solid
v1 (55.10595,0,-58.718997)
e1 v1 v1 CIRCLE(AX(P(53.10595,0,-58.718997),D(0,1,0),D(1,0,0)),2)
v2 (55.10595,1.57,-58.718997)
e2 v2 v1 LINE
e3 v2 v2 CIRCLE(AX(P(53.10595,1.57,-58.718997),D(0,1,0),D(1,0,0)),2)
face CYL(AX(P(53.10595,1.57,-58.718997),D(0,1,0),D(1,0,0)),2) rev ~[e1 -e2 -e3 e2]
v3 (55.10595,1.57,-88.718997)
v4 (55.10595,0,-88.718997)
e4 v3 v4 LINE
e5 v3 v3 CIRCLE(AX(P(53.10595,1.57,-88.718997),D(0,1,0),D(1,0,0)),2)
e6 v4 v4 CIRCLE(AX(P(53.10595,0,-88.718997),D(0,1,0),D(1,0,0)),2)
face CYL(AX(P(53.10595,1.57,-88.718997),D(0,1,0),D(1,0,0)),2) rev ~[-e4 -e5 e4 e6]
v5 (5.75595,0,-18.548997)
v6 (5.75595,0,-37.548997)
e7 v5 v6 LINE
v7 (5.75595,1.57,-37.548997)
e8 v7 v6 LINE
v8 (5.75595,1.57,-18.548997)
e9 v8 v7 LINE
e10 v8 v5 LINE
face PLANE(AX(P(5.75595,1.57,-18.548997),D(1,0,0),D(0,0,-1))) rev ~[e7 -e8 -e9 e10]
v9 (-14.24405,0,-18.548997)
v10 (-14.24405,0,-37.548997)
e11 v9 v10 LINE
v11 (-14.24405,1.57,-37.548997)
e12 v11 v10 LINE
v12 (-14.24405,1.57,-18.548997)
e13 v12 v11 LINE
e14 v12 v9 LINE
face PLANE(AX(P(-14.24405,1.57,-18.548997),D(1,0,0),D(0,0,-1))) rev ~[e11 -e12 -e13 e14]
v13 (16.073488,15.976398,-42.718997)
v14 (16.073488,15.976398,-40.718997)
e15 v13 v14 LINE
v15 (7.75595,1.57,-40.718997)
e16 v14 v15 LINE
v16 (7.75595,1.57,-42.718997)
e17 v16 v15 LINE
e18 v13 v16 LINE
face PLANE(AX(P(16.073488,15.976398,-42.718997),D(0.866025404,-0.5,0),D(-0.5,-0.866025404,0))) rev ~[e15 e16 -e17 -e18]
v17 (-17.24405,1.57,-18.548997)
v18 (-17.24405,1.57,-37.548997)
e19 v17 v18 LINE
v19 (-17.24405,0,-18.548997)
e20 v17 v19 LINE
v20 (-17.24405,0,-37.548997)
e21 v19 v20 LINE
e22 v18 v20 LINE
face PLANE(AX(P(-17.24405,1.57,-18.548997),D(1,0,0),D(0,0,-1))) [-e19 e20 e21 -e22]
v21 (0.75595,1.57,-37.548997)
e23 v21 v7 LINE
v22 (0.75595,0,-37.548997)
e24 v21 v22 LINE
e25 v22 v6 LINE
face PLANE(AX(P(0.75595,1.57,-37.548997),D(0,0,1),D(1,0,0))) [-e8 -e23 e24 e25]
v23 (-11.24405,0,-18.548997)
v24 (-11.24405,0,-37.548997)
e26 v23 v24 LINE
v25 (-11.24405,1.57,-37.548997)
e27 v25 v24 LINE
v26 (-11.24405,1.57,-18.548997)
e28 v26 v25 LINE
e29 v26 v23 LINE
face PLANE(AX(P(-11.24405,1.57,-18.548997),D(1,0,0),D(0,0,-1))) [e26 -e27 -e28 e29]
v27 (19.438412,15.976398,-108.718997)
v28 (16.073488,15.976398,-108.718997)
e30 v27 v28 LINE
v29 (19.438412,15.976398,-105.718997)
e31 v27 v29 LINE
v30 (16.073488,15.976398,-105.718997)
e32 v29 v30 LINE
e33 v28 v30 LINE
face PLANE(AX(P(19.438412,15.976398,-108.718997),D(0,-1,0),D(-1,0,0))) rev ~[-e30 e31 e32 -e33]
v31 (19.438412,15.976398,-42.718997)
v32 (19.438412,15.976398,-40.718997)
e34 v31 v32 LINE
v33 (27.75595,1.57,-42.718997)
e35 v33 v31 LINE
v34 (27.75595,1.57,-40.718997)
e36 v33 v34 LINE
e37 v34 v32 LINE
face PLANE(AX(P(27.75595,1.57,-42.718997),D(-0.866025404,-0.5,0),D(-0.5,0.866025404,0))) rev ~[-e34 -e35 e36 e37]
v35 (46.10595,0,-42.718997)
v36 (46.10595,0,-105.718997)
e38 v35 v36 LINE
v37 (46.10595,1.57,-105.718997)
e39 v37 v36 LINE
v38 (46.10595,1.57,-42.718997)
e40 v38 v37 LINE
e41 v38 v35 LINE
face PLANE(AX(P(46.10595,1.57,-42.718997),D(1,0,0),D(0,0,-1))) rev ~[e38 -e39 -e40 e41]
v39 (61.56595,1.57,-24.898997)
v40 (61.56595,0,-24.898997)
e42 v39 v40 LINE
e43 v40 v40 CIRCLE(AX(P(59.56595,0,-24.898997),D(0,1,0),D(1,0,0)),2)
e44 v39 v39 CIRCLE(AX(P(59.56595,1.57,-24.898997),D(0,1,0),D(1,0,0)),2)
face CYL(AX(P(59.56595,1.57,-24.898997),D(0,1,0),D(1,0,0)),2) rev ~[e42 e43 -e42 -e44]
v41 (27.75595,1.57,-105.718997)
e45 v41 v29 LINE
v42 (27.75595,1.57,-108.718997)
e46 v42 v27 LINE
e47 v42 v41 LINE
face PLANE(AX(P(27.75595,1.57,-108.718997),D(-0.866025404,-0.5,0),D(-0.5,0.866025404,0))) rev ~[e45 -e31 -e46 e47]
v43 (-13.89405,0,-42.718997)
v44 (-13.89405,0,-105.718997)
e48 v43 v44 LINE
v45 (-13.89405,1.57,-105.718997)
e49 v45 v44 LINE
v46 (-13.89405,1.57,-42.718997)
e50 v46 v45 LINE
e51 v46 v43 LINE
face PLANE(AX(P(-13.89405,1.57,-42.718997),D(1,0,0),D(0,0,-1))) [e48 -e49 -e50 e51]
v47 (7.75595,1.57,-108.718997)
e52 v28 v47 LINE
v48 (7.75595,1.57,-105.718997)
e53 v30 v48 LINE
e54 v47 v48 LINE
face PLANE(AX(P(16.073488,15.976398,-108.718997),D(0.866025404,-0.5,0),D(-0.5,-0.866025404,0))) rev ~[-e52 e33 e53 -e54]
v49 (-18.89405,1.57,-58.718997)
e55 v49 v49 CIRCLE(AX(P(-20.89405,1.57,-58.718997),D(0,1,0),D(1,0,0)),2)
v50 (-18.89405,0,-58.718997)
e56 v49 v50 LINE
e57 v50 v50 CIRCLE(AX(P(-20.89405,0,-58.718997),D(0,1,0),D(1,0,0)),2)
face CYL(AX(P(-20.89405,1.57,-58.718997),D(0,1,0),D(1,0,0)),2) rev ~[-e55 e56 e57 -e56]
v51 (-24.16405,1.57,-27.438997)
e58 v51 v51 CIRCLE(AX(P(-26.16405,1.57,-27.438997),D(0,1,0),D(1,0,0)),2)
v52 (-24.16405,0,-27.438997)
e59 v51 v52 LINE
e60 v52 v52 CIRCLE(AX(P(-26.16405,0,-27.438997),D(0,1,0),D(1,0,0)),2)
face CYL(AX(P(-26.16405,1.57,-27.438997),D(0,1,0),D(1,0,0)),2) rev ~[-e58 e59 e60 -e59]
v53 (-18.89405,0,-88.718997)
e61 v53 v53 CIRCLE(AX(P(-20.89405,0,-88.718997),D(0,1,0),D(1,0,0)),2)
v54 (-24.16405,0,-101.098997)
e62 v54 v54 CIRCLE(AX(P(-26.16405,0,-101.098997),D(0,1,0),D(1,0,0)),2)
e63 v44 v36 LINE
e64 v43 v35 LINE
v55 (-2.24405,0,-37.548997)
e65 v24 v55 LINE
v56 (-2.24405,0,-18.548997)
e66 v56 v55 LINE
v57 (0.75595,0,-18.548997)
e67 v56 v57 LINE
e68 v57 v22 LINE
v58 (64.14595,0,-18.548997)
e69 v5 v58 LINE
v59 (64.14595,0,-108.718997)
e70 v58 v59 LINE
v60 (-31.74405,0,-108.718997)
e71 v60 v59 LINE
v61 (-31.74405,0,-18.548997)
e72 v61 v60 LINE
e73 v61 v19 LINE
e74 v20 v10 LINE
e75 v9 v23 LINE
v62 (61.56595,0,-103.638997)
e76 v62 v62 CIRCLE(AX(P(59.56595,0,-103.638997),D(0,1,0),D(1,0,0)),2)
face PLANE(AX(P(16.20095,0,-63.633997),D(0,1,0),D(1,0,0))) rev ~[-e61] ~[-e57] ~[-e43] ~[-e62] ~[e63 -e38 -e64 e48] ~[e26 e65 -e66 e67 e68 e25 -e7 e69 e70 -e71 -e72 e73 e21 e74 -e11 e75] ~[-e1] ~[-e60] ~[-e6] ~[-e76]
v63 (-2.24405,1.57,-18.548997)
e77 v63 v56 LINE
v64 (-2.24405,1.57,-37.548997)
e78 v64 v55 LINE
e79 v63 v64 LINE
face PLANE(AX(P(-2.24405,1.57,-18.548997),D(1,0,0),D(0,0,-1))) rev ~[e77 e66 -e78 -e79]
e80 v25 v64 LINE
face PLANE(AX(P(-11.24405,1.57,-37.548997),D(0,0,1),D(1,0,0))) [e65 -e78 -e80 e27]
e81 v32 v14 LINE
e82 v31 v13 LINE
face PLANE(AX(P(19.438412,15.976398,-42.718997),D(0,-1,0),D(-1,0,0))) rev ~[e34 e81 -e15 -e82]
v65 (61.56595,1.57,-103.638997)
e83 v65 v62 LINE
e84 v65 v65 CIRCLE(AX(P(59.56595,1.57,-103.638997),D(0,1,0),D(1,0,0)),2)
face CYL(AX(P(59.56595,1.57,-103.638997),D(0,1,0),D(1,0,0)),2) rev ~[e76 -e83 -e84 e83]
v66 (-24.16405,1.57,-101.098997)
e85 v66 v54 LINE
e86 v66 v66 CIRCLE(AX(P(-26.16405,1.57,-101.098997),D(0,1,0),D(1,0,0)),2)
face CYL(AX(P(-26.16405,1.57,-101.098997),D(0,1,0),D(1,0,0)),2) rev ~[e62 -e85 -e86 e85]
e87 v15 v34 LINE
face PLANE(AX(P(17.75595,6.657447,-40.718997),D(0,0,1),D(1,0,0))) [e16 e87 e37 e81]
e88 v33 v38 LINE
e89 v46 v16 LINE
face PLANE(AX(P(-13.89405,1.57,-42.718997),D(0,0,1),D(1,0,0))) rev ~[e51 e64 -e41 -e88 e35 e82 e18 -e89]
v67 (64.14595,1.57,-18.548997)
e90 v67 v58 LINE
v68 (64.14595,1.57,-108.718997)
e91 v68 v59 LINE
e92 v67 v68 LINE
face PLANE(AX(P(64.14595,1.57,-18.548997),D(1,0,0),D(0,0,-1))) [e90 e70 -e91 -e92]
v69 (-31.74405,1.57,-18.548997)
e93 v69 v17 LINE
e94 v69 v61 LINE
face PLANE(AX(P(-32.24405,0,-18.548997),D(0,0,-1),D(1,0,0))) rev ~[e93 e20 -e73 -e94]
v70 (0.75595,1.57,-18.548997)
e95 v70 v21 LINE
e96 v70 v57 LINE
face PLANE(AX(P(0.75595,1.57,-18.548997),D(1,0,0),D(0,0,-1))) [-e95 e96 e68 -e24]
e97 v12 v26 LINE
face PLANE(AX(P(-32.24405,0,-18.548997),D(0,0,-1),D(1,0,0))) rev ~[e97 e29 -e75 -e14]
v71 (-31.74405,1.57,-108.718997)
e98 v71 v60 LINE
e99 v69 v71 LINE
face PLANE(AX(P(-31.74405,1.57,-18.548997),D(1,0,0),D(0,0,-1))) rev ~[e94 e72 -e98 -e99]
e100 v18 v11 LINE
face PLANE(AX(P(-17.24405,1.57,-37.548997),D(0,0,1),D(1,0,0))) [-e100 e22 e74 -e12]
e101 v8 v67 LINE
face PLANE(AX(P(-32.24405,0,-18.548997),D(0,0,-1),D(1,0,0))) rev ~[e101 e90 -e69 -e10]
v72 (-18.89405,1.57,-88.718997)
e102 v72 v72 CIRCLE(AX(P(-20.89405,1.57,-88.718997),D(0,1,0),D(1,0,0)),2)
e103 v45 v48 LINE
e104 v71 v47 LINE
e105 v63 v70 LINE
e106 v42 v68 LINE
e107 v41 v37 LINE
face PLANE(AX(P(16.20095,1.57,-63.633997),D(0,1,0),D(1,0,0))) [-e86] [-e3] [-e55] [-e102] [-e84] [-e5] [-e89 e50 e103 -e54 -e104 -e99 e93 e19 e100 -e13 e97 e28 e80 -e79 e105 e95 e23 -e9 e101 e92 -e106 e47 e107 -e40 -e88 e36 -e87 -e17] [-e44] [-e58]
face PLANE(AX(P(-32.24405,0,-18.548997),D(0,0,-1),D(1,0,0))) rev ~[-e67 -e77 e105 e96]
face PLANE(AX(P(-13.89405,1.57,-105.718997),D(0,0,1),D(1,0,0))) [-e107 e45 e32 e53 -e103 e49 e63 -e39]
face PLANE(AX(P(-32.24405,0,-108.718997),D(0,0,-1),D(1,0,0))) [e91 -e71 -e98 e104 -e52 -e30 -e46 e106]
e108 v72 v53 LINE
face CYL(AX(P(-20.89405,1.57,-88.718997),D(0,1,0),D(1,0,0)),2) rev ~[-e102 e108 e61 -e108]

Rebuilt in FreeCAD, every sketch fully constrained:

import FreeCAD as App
import Part
import Sketcher
from FreeCAD import Vector
Q = App.Units.Quantity


def add_polygon(sketch, points):
    """Adds a closed chain of lines whose ends are joined by coincident constraints."""
    first, n = sketch.GeometryCount, len(points)
    for a, b in zip(points, points[1:] + points[:1]):
        sketch.addGeometry(Part.LineSegment(App.Vector(*a, 0), App.Vector(*b, 0)), False)
    for i in range(n):
        sketch.addConstraint(Sketcher.Constraint("Coincident", first + i, 2, first + (i + 1) % n, 1))

doc = App.newDocument("Part")
body = doc.addObject("PartDesign::Body", "Body")

sketch1 = body.newObject("Sketcher::SketchObject", "Sketch")
sketch1.AttachmentSupport = (doc.getObject("XZ_Plane"), [""])
sketch1.MapMode = "FlatFace"
add_polygon(sketch1, [(-32, -109), (-32, -19), (65, -19), (65, -109)])
sketch1.addConstraint(Sketcher.Constraint("Vertical", 0))
sketch1.addConstraint(Sketcher.Constraint("Horizontal", 1))
sketch1.addConstraint(Sketcher.Constraint("Vertical", 2))
sketch1.addConstraint(Sketcher.Constraint("Horizontal", 3))
sketch1.addConstraint(Sketcher.Constraint("DistanceX", 1, 1, 1, 2, Q("96.89 mm")))
sketch1.addConstraint(Sketcher.Constraint("DistanceY", 0, 1, 0, 2, Q("90.17 mm")))
sketch1.addConstraint(Sketcher.Constraint("DistanceX", 0, 2, -1, 1, Q("32.24405 mm")))
sketch1.addConstraint(Sketcher.Constraint("DistanceY", 0, 2, -1, 1, Q("18.548997 mm")))
pad1 = body.newObject("PartDesign::Pad", "Pad")
pad1.Profile = sketch1
pad1.Length = 1.57
pad1.Reversed = True

sketch2 = body.newObject("Sketcher::SketchObject", "Sketch001")
sketch2.AttachmentSupport = (doc.getObject("XZ_Plane"), [""])
sketch2.MapMode = "FlatFace"
sketch2.AttachmentOffset = App.Placement(Vector(0, 0, -1.57), App.Rotation())
sketch2.addGeometry(Part.Circle(Vector(59.6, -24.9, 0), Vector(0, 0, 1), 2), False)
sketch2.addGeometry(Part.Circle(Vector(-26.2, -27.4, 0), Vector(0, 0, 1), 2), False)
sketch2.addGeometry(Part.Circle(Vector(-26.2, -101.1, 0), Vector(0, 0, 1), 2), False)
sketch2.addGeometry(Part.Circle(Vector(59.6, -103.6, 0), Vector(0, 0, 1), 2), False)
sketch2.addConstraint(Sketcher.Constraint("Equal", 0, 1))
sketch2.addConstraint(Sketcher.Constraint("Equal", 1, 2))
sketch2.addConstraint(Sketcher.Constraint("Equal", 2, 3))
sketch2.addConstraint(Sketcher.Constraint("Vertical", 1, 3, 2, 3))
sketch2.addConstraint(Sketcher.Constraint("Vertical", 0, 3, 3, 3))
sketch2.addConstraint(Sketcher.Constraint("Diameter", 0, Q("4 mm")))
sketch2.addConstraint(Sketcher.Constraint("DistanceY", 2, 3, 0, 3, Q("76.2 mm")))
sketch2.addConstraint(Sketcher.Constraint("DistanceY", 3, 3, 1, 3, Q("76.2 mm")))
sketch2.addConstraint(Sketcher.Constraint("DistanceX", 1, 3, 0, 3, Q("85.73 mm")))
sketch2.addConstraint(Sketcher.Constraint("DistanceY", 1, 3, 0, 3, Q("2.54 mm")))
sketch2.addConstraint(Sketcher.Constraint("DistanceX", -1, 1, 0, 3, Q("59.56595 mm")))
sketch2.addConstraint(Sketcher.Constraint("DistanceY", 0, 3, -1, 1, Q("24.898997 mm")))
pocket1 = body.newObject("PartDesign::Pocket", "Pocket")
pocket1.Profile = sketch2
pocket1.Length = 1.57
pocket1.Reversed = True

sketch3 = body.newObject("Sketcher::SketchObject", "Sketch002")
sketch3.AttachmentSupport = (doc.getObject("XZ_Plane"), [""])
sketch3.MapMode = "FlatFace"
sketch3.AttachmentOffset = App.Placement(Vector(0, 0, -1.57), App.Rotation())
sketch3.addGeometry(Part.Circle(Vector(-20.9, -88.7, 0), Vector(0, 0, 1), 2), False)
sketch3.addGeometry(Part.Circle(Vector(53.1, -88.7, 0), Vector(0, 0, 1), 2), False)
sketch3.addGeometry(Part.Circle(Vector(-20.9, -58.7, 0), Vector(0, 0, 1), 2), False)
sketch3.addGeometry(Part.Circle(Vector(53.1, -58.7, 0), Vector(0, 0, 1), 2), False)
sketch3.addConstraint(Sketcher.Constraint("Equal", 0, 1))
sketch3.addConstraint(Sketcher.Constraint("Equal", 1, 2))
sketch3.addConstraint(Sketcher.Constraint("Equal", 2, 3))
sketch3.addConstraint(Sketcher.Constraint("Horizontal", 0, 3, 1, 3))
sketch3.addConstraint(Sketcher.Constraint("Horizontal", 2, 3, 3, 3))
sketch3.addConstraint(Sketcher.Constraint("Vertical", 0, 3, 2, 3))
sketch3.addConstraint(Sketcher.Constraint("Vertical", 1, 3, 3, 3))
sketch3.addConstraint(Sketcher.Constraint("Diameter", 0, Q("4 mm")))
sketch3.addConstraint(Sketcher.Constraint("DistanceX", 0, 3, 1, 3, Q("74 mm")))
sketch3.addConstraint(Sketcher.Constraint("DistanceY", 0, 3, 2, 3, Q("30 mm")))
sketch3.addConstraint(Sketcher.Constraint("DistanceX", 0, 3, -1, 1, Q("20.89405 mm")))
sketch3.addConstraint(Sketcher.Constraint("DistanceY", 0, 3, -1, 1, Q("88.718997 mm")))
pocket2 = body.newObject("PartDesign::Pocket", "Pocket001")
pocket2.Profile = sketch3
pocket2.Length = 23
pocket2.Reversed = True

sketch4 = body.newObject("Sketcher::SketchObject", "Sketch003")
sketch4.AttachmentSupport = (doc.getObject("XY_Plane"), [""])
sketch4.MapMode = "FlatFace"
sketch4.AttachmentOffset = App.Placement(Vector(0, 0, -42.718997), App.Rotation())
add_polygon(sketch4, [(27.8, 1.6), (19.4, 16), (16.1, 16), (7.8, 1.6)])
sketch4.addConstraint(Sketcher.Constraint("Horizontal", 1))
sketch4.addConstraint(Sketcher.Constraint("Horizontal", 3))
sketch4.addConstraint(Sketcher.Constraint("Equal", 0, 2))
sketch4.addConstraint(Sketcher.Constraint("DistanceX", 3, 1, 3, 2, Q("20 mm")))
sketch4.addConstraint(Sketcher.Constraint("Angle", 0, Q("120 deg")))
sketch4.addConstraint(Sketcher.Constraint("DistanceY", -1, 1, 2, 2, Q("1.57 mm")))
sketch4.addConstraint(Sketcher.Constraint("DistanceY", -1, 1, 0, 2, Q("15.976398 mm")))
sketch4.addConstraint(Sketcher.Constraint("DistanceX", -1, 1, 2, 2, Q("7.75595 mm")))
pad2 = body.newObject("PartDesign::Pad", "Pad001")
pad2.Profile = sketch4
pad2.Length = 2

sketch5 = body.newObject("Sketcher::SketchObject", "Sketch004")
sketch5.AttachmentSupport = (doc.getObject("XY_Plane"), [""])
sketch5.MapMode = "FlatFace"
sketch5.AttachmentOffset = App.Placement(Vector(0, 0, -108.718997), App.Rotation())
add_polygon(sketch5, [(27.8, 1.6), (19.4, 16), (16.1, 16), (7.8, 1.6)])
sketch5.addConstraint(Sketcher.Constraint("Horizontal", 1))
sketch5.addConstraint(Sketcher.Constraint("Horizontal", 3))
sketch5.addConstraint(Sketcher.Constraint("Equal", 0, 2))
sketch5.addConstraint(Sketcher.Constraint("DistanceX", 3, 1, 3, 2, Q("20 mm")))
sketch5.addConstraint(Sketcher.Constraint("Angle", 0, Q("120 deg")))
sketch5.addConstraint(Sketcher.Constraint("DistanceY", -1, 1, 2, 2, Q("1.57 mm")))
sketch5.addConstraint(Sketcher.Constraint("DistanceY", -1, 1, 0, 2, Q("15.976398 mm")))
sketch5.addConstraint(Sketcher.Constraint("DistanceX", -1, 1, 2, 2, Q("7.75595 mm")))
pad3 = body.newObject("PartDesign::Pad", "Pad002")
pad3.Profile = sketch5
pad3.Length = 3

sketch6 = body.newObject("Sketcher::SketchObject", "Sketch005")
sketch6.AttachmentSupport = (doc.getObject("XZ_Plane"), [""])
sketch6.MapMode = "FlatFace"
sketch6.AttachmentOffset = App.Placement(Vector(0, 0, -1.57), App.Rotation())
add_polygon(sketch6, [(-17.2, -37.5), (-17.2, -18.5), (-14.2, -18.5), (-14.2, -37.5)])
add_polygon(sketch6, [(-11.2, -37.5), (-11.2, -18.5), (-2.2, -18.5), (-2.2, -37.5)])
add_polygon(sketch6, [(0.8, -37.5), (0.8, -18.5), (5.8, -18.5), (5.8, -37.5)])
sketch6.addConstraint(Sketcher.Constraint("Vertical", 0))
sketch6.addConstraint(Sketcher.Constraint("Horizontal", 1))
sketch6.addConstraint(Sketcher.Constraint("Vertical", 2))
sketch6.addConstraint(Sketcher.Constraint("Horizontal", 3))
sketch6.addConstraint(Sketcher.Constraint("Vertical", 4))
sketch6.addConstraint(Sketcher.Constraint("Horizontal", 5))
sketch6.addConstraint(Sketcher.Constraint("Vertical", 6))
sketch6.addConstraint(Sketcher.Constraint("Horizontal", 7))
sketch6.addConstraint(Sketcher.Constraint("Vertical", 8))
sketch6.addConstraint(Sketcher.Constraint("Horizontal", 9))
sketch6.addConstraint(Sketcher.Constraint("Vertical", 10))
sketch6.addConstraint(Sketcher.Constraint("Horizontal", 11))
sketch6.addConstraint(Sketcher.Constraint("Horizontal", 1, 2, 4, 2))
sketch6.addConstraint(Sketcher.Constraint("Horizontal", 3, 2, 6, 2))
sketch6.addConstraint(Sketcher.Constraint("Horizontal", 5, 2, 8, 2))
sketch6.addConstraint(Sketcher.Constraint("Horizontal", 7, 2, 10, 2))
sketch6.addConstraint(Sketcher.Constraint("DistanceX", 1, 1, 1, 2, Q("3 mm")))
sketch6.addConstraint(Sketcher.Constraint("DistanceX", 5, 1, 5, 2, Q("9 mm")))
sketch6.addConstraint(Sketcher.Constraint("DistanceX", 9, 1, 9, 2, Q("5 mm")))
sketch6.addConstraint(Sketcher.Constraint("DistanceY", 0, 1, 0, 2, Q("19 mm")))
sketch6.addConstraint(Sketcher.Constraint("DistanceX", 1, 2, 4, 2, Q("3 mm")))
sketch6.addConstraint(Sketcher.Constraint("DistanceX", 5, 2, 8, 2, Q("3 mm")))
sketch6.addConstraint(Sketcher.Constraint("DistanceX", 0, 2, -1, 1, Q("17.24405 mm")))
sketch6.addConstraint(Sketcher.Constraint("DistanceY", 0, 2, -1, 1, Q("18.548997 mm")))
pocket3 = body.newObject("PartDesign::Pocket", "Pocket002")
pocket3.Profile = sketch6
pocket3.Type = "ThroughAll"
pocket3.Reversed = True

sketch7 = body.newObject("Sketcher::SketchObject", "Sketch006")
sketch7.AttachmentSupport = (doc.getObject("XZ_Plane"), [""])
sketch7.MapMode = "FlatFace"
sketch7.AttachmentOffset = App.Placement(Vector(0, 0, -1.57), App.Rotation())
add_polygon(sketch7, [(-32.2, -108.7), (-32.2, -18.5), (-31.7, -18.5), (-31.7, -108.7)])
add_polygon(sketch7, [(64.1, -108.7), (64.1, -18.5), (64.6, -18.5), (64.6, -108.7)])
sketch7.addConstraint(Sketcher.Constraint("Vertical", 0))
sketch7.addConstraint(Sketcher.Constraint("Horizontal", 1))
sketch7.addConstraint(Sketcher.Constraint("Vertical", 2))
sketch7.addConstraint(Sketcher.Constraint("Horizontal", 3))
sketch7.addConstraint(Sketcher.Constraint("Vertical", 4))
sketch7.addConstraint(Sketcher.Constraint("Horizontal", 5))
sketch7.addConstraint(Sketcher.Constraint("Vertical", 6))
sketch7.addConstraint(Sketcher.Constraint("Horizontal", 7))
sketch7.addConstraint(Sketcher.Constraint("Horizontal", 1, 2, 4, 2))
sketch7.addConstraint(Sketcher.Constraint("Horizontal", 3, 2, 6, 2))
sketch7.addConstraint(Sketcher.Constraint("Equal", 3, 5))
sketch7.addConstraint(Sketcher.Constraint("DistanceX", 1, 1, 1, 2, Q("0.5 mm")))
sketch7.addConstraint(Sketcher.Constraint("DistanceY", 0, 1, 0, 2, Q("90.17 mm")))
sketch7.addConstraint(Sketcher.Constraint("DistanceX", 1, 2, 4, 2, Q("95.89 mm")))
sketch7.addConstraint(Sketcher.Constraint("DistanceX", 0, 2, -1, 1, Q("32.24405 mm")))
sketch7.addConstraint(Sketcher.Constraint("DistanceY", 0, 2, -1, 1, Q("18.548997 mm")))
pocket4 = body.newObject("PartDesign::Pocket", "Pocket003")
pocket4.Profile = sketch7
pocket4.Length = 10
pocket4.Reversed = True

sketch8 = body.newObject("Sketcher::SketchObject", "Sketch007")
sketch8.AttachmentSupport = (doc.getObject("XZ_Plane"), [""])
sketch8.MapMode = "FlatFace"
sketch8.AttachmentOffset = App.Placement(Vector(0, 0, -1.57), App.Rotation())
add_polygon(sketch8, [(-14, -106), (-14, -43), (46, -43), (46, -106)])
sketch8.addConstraint(Sketcher.Constraint("Vertical", 0))
sketch8.addConstraint(Sketcher.Constraint("Horizontal", 1))
sketch8.addConstraint(Sketcher.Constraint("Vertical", 2))
sketch8.addConstraint(Sketcher.Constraint("Horizontal", 3))
sketch8.addConstraint(Sketcher.Constraint("DistanceX", 1, 1, 1, 2, Q("60 mm")))
sketch8.addConstraint(Sketcher.Constraint("DistanceY", 0, 1, 0, 2, Q("63 mm")))
sketch8.addConstraint(Sketcher.Constraint("DistanceX", 0, 2, -1, 1, Q("13.89405 mm")))
sketch8.addConstraint(Sketcher.Constraint("DistanceY", 0, 2, -1, 1, Q("42.718997 mm")))
pocket5 = body.newObject("PartDesign::Pocket", "Pocket004")
pocket5.Profile = sketch8
pocket5.Length = 10
pocket5.Reversed = True

doc.recompute()
